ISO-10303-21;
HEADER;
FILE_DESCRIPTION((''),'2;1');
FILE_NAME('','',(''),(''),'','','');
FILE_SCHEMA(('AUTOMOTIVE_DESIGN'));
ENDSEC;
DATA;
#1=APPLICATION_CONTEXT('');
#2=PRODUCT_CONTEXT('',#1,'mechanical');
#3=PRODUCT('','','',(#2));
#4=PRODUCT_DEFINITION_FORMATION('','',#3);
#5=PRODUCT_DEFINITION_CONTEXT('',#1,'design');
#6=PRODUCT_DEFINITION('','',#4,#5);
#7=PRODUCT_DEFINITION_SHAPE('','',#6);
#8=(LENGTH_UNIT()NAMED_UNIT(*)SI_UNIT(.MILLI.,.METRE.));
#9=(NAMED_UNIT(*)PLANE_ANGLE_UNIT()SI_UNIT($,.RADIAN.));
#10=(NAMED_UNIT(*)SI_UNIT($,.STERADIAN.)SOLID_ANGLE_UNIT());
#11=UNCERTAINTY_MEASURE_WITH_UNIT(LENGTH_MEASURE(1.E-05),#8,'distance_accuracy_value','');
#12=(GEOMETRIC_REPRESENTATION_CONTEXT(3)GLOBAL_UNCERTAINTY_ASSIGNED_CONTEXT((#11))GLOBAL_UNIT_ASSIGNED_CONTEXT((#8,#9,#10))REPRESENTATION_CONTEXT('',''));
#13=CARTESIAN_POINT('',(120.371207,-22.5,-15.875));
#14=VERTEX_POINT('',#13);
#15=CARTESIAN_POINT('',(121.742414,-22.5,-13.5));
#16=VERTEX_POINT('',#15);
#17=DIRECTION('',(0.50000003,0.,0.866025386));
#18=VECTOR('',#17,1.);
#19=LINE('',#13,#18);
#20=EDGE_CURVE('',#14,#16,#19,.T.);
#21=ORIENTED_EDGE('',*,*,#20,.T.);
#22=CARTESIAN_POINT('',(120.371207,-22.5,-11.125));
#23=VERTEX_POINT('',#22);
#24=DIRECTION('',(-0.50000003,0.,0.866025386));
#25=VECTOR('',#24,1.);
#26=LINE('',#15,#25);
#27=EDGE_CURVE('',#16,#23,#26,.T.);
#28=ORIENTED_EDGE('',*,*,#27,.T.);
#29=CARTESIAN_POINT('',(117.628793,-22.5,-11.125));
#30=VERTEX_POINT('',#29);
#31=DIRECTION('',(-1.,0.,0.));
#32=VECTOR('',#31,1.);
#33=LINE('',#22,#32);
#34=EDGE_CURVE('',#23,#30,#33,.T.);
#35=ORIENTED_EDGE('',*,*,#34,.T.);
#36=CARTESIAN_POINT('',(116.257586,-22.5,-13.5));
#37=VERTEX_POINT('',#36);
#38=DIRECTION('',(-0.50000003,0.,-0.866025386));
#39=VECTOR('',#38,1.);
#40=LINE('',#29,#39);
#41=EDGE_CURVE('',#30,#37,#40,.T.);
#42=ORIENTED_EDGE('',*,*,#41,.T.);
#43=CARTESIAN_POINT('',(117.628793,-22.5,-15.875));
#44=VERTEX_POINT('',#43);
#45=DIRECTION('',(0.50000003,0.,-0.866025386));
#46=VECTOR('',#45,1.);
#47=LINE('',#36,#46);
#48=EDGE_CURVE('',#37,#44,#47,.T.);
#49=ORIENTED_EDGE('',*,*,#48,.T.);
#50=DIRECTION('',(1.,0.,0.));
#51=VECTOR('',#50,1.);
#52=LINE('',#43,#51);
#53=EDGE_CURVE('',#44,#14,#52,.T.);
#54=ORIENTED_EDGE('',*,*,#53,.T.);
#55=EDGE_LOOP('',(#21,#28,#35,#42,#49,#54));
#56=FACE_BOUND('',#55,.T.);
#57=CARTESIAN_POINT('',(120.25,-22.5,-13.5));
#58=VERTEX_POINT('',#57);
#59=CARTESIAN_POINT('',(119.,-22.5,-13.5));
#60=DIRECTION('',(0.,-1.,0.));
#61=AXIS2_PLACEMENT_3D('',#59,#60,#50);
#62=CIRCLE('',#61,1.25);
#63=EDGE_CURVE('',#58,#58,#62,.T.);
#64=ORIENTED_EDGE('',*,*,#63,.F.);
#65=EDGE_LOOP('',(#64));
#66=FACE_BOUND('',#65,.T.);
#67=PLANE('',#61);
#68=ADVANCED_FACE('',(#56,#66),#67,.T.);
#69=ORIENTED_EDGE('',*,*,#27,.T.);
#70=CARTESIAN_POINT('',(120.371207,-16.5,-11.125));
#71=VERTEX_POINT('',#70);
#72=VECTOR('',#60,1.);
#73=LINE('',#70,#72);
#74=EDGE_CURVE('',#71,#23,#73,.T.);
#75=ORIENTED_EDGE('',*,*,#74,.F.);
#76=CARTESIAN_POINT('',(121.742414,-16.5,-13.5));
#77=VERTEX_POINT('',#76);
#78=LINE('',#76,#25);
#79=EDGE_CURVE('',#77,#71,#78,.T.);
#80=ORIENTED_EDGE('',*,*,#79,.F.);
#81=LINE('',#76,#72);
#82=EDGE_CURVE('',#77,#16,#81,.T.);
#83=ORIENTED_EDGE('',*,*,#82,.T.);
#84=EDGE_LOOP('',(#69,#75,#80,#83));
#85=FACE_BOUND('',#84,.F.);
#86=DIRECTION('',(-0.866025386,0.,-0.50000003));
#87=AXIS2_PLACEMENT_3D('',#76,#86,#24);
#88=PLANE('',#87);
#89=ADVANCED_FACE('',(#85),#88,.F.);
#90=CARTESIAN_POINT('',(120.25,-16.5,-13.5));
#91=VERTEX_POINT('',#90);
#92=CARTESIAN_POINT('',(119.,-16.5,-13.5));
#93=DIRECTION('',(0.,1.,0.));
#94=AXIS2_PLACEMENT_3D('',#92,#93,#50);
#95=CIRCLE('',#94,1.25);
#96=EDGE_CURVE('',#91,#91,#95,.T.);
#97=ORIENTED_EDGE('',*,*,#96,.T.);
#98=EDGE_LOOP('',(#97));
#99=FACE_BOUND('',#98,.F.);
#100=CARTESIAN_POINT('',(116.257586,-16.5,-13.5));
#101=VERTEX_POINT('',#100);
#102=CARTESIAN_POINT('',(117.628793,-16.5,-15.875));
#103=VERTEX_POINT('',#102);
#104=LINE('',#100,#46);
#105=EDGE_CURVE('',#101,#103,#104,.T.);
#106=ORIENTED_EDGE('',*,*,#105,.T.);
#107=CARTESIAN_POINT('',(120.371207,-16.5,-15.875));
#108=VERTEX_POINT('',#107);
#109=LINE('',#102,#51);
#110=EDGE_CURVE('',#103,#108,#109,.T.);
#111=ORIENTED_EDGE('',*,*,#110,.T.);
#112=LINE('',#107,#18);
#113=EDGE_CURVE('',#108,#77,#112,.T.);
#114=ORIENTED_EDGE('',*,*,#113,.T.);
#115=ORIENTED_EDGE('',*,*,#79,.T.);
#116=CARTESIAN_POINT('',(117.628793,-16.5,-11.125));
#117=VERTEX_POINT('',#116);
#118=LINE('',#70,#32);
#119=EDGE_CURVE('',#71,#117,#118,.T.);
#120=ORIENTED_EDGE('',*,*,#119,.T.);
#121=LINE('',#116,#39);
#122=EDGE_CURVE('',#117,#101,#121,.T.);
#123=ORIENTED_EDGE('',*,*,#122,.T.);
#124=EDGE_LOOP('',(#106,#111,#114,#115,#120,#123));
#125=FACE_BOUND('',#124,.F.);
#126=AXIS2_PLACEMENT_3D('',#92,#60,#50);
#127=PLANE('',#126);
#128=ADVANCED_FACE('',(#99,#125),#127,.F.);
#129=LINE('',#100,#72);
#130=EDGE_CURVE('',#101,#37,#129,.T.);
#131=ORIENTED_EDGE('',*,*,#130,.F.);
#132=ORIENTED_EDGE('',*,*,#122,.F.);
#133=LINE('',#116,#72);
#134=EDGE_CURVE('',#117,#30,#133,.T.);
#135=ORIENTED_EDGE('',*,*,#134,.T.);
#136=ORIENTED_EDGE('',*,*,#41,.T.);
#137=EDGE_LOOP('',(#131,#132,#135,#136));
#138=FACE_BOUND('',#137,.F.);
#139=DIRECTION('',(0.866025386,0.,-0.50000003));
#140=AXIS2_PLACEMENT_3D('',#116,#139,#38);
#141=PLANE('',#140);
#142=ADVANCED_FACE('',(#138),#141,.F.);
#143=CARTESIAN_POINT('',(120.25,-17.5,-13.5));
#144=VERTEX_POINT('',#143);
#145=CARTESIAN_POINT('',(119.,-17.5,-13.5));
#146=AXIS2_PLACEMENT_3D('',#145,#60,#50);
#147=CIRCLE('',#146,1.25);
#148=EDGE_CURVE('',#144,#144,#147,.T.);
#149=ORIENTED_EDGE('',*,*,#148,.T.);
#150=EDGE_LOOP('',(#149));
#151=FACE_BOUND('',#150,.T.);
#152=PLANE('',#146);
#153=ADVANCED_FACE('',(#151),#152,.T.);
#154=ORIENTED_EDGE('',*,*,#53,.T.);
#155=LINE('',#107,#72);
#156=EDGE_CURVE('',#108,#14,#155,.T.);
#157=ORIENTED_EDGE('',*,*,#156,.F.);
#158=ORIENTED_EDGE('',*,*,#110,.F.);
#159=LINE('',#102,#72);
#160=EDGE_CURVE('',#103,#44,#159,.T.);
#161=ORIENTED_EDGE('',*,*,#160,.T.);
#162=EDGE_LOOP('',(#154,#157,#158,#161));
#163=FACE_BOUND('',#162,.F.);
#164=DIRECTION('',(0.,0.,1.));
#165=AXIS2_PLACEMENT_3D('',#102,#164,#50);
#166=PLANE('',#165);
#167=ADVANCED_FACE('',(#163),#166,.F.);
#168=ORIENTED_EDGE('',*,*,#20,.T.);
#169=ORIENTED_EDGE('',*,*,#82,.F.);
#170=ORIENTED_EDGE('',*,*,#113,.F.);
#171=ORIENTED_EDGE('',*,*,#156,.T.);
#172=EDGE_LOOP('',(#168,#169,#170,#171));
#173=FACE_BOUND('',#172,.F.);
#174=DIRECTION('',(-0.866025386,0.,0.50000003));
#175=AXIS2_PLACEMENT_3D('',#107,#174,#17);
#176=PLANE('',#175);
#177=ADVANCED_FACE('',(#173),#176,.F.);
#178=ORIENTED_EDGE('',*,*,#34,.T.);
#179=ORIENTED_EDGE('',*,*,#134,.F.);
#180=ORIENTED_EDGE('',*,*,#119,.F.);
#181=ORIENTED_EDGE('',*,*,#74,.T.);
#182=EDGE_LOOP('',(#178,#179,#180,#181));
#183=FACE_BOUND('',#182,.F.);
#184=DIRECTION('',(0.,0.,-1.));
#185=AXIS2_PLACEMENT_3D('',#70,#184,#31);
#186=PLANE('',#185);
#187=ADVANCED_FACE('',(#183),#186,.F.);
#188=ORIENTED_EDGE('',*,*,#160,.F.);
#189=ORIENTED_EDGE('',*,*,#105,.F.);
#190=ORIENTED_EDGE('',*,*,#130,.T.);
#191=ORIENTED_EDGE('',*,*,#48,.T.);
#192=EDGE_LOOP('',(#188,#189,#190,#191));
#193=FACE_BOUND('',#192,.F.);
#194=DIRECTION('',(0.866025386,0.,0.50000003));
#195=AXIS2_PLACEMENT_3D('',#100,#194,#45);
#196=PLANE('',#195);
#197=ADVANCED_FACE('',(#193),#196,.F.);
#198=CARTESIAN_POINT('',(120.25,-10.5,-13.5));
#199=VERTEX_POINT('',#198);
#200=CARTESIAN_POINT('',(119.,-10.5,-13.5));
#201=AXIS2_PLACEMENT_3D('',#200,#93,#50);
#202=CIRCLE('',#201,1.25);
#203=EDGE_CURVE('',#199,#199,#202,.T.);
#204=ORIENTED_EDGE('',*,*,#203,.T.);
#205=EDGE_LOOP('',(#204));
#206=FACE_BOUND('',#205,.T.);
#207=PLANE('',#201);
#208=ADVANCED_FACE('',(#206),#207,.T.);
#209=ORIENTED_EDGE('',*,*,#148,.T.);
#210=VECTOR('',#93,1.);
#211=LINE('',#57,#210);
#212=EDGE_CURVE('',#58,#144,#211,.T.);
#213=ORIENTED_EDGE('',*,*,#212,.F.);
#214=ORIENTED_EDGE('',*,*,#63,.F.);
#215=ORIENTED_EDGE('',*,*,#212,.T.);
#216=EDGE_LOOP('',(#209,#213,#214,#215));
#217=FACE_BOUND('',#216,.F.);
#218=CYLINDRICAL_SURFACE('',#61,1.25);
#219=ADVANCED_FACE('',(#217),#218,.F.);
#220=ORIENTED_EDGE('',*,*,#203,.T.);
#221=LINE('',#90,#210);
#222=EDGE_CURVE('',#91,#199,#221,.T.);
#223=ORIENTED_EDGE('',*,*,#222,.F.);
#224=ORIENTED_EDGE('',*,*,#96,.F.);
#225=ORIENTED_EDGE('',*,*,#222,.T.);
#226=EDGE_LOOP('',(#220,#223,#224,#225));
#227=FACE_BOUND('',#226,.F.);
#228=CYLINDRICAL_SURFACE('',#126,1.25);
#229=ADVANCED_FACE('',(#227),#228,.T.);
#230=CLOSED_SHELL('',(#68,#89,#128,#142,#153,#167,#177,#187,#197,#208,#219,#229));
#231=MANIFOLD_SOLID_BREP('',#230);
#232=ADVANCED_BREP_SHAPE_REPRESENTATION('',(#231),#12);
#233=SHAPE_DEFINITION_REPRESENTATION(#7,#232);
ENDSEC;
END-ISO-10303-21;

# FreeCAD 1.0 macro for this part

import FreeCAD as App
import Part
import Sketcher
from FreeCAD import Vector
Q = App.Units.Quantity

doc = App.newDocument("Part")
body = doc.addObject("PartDesign::Body", "Body")

sketch1 = body.newObject("Sketcher::SketchObject", "Sketch")
sketch1.AttachmentSupport = (doc.getObject("XY_Plane"), [""])
sketch1.MapMode = "FlatFace"
sketch1.addGeometry(Part.LineSegment(Vector(1.4, 2.4, 0), Vector(-1.4, 2.4, 0)), False)
sketch1.addGeometry(Part.LineSegment(Vector(-1.4, 2.4, 0), Vector(-2.7, 0, 0)), False)
sketch1.addGeometry(Part.LineSegment(Vector(-2.7, 0, 0), Vector(-1.4, -2.4, 0)), False)
sketch1.addGeometry(Part.LineSegment(Vector(-1.4, -2.4, 0), Vector(1.4, -2.4, 0)), False)
sketch1.addGeometry(Part.LineSegment(Vector(1.4, -2.4, 0), Vector(2.7, 0, 0)), False)
sketch1.addGeometry(Part.LineSegment(Vector(2.7, 0, 0), Vector(1.4, 2.4, 0)), False)
sketch1.addConstraint(Sketcher.Constraint("Coincident", 0, 2, 1, 1))
sketch1.addConstraint(Sketcher.Constraint("Coincident", 1, 2, 2, 1))
sketch1.addConstraint(Sketcher.Constraint("Coincident", 2, 2, 3, 1))
sketch1.addConstraint(Sketcher.Constraint("Coincident", 3, 2, 4, 1))
sketch1.addConstraint(Sketcher.Constraint("Coincident", 4, 2, 5, 1))
sketch1.addConstraint(Sketcher.Constraint("Coincident", 5, 2, 0, 1))
sketch1.addConstraint(Sketcher.Constraint("Horizontal", 0))
sketch1.addConstraint(Sketcher.Constraint("Horizontal", 3))
sketch1.addConstraint(Sketcher.Constraint("Symmetric", 0, 2, 3, 2, -1, 1))
sketch1.addConstraint(Sketcher.Constraint("Symmetric", 1, 2, 4, 2, -1, 1))
sketch1.addConstraint(Sketcher.Constraint("PointOnObject", 1, 2, -1))
sketch1.addConstraint(Sketcher.Constraint("Parallel", 2, 5))
sketch1.addConstraint(Sketcher.Constraint("Vertical", 0, 2, 2, 2))
sketch1.addConstraint(Sketcher.Constraint("Angle", 1, Q("-120.000002 deg")))
sketch1.addConstraint(Sketcher.Constraint("DistanceY", 2, 2, 0, 2, Q("4.75 mm")))
sketch1.addConstraint(Sketcher.Constraint("DistanceX", 0, 2, 0, 1, Q("2.742414 mm")))
pad1 = body.newObject("PartDesign::Pad", "Pad")
pad1.Profile = sketch1
pad1.Length = 6

sketch2 = body.newObject("Sketcher::SketchObject", "Sketch001")
sketch2.AttachmentSupport = (doc.getObject("XY_Plane"), [""])
sketch2.MapMode = "FlatFace"
sketch2.addGeometry(Part.Circle(Vector(0, 0, 0), Vector(0, 0, 1), 1.2), False)
sketch2.addConstraint(Sketcher.Constraint("Coincident", 0, 3, -1, 1))
sketch2.addConstraint(Sketcher.Constraint("Diameter", 0, Q("2.5 mm")))
pad2 = body.newObject("PartDesign::Pad", "Pad001")
pad2.Profile = sketch2
pad2.Length = 6
pad2.Reversed = True

sketch3 = body.newObject("Sketcher::SketchObject", "Sketch002")
sketch3.AttachmentSupport = (doc.getObject("XY_Plane"), [""])
sketch3.MapMode = "FlatFace"
sketch3.AttachmentOffset = App.Placement(Vector(0, 0, 6), App.Rotation())
sketch3.addGeometry(Part.Circle(Vector(0, 0, 0), Vector(0, 0, 1), 1.2), False)
sketch3.addConstraint(Sketcher.Constraint("Coincident", 0, 3, -1, 1))
sketch3.addConstraint(Sketcher.Constraint("Diameter", 0, Q("2.5 mm")))
pocket1 = body.newObject("PartDesign::Pocket", "Pocket")
pocket1.Profile = sketch3
pocket1.Length = 5
body2 = doc.addObject("PartDesign::Body", "Body001")
doc.recompute()

body.Placement = App.Placement(Vector(61, -16.5, -13.5), App.Rotation(Vector(1, 0, 0), 90))
boolean = body2.newObject("PartDesign::Boolean", "Boolean")
boolean.Type = "Fuse"
boolean.addObjects([body])
body3 = doc.addObject("PartDesign::Body", "Body002")
doc.recompute()

body2.Placement = App.Placement(Vector(58, 0, 0), App.Rotation(Vector(0, 0, 1), 0))
boolean2 = body3.newObject("PartDesign::Boolean", "Boolean001")
boolean2.Type = "Fuse"
boolean2.addObjects([body2])

doc.recompute()
